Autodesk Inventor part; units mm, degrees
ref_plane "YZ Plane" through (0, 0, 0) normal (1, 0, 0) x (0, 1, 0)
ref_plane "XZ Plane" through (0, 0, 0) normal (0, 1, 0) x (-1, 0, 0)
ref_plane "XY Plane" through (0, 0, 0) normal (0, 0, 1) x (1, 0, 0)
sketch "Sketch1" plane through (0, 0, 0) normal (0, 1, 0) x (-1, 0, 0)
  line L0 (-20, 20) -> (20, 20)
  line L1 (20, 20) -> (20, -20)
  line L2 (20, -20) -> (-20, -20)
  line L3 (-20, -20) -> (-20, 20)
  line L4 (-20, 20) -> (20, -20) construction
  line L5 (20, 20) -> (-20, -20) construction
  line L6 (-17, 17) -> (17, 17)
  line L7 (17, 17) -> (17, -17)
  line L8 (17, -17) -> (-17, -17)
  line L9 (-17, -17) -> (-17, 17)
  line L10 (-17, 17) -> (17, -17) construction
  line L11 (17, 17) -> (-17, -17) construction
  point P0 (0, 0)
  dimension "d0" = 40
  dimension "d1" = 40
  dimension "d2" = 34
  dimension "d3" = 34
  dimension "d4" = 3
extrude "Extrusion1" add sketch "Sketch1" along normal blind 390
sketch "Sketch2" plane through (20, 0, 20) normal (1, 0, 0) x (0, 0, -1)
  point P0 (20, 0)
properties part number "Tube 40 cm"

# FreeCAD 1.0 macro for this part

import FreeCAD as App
import Part
import Sketcher
Q = App.Units.Quantity


def add_polygon(sketch, points):
    """Adds a closed chain of lines whose ends are joined by coincident constraints."""
    first, n = sketch.GeometryCount, len(points)
    for a, b in zip(points, points[1:] + points[:1]):
        sketch.addGeometry(Part.LineSegment(App.Vector(*a, 0), App.Vector(*b, 0)), False)
    for i in range(n):
        sketch.addConstraint(Sketcher.Constraint("Coincident", first + i, 2, first + (i + 1) % n, 1))

doc = App.newDocument("Part")
body = doc.addObject("PartDesign::Body", "Body")

sketch1 = body.newObject("Sketcher::SketchObject", "Sketch")
sketch1.AttachmentSupport = (doc.getObject("XZ_Plane"), [""])
sketch1.MapMode = "FlatFace"
add_polygon(sketch1, [(-20, 20), (20, 20), (20, -20), (-20, -20)])
add_polygon(sketch1, [(17, -17), (17, 17), (-17, 17), (-17, -17)])
sketch1.addConstraint([
    Sketcher.Constraint("Horizontal", 0),
    Sketcher.Constraint("Vertical", 1),
    Sketcher.Constraint("Horizontal", 2),
    Sketcher.Constraint("Vertical", 3),
    Sketcher.Constraint("Vertical", 4),
    Sketcher.Constraint("Horizontal", 5),
    Sketcher.Constraint("Vertical", 6),
    Sketcher.Constraint("Horizontal", 7),
    Sketcher.Constraint("Symmetric", 0, 2, 2, 2, -1, 1),
    Sketcher.Constraint("Symmetric", 4, 2, 6, 2, -1, 1),
    Sketcher.Constraint("Equal", 2, 1),
    Sketcher.Constraint("Equal", 7, 4),
    Sketcher.Constraint("DistanceX", 0, 1, 0, 2, Q("40 mm")),
    Sketcher.Constraint("DistanceX", 5, 2, 5, 1, Q("34 mm")),
])
pad1 = body.newObject("PartDesign::Pad", "Pad")
pad1.Profile = sketch1
pad1.Length = 390
pad1.Reversed = True

doc.recompute()
